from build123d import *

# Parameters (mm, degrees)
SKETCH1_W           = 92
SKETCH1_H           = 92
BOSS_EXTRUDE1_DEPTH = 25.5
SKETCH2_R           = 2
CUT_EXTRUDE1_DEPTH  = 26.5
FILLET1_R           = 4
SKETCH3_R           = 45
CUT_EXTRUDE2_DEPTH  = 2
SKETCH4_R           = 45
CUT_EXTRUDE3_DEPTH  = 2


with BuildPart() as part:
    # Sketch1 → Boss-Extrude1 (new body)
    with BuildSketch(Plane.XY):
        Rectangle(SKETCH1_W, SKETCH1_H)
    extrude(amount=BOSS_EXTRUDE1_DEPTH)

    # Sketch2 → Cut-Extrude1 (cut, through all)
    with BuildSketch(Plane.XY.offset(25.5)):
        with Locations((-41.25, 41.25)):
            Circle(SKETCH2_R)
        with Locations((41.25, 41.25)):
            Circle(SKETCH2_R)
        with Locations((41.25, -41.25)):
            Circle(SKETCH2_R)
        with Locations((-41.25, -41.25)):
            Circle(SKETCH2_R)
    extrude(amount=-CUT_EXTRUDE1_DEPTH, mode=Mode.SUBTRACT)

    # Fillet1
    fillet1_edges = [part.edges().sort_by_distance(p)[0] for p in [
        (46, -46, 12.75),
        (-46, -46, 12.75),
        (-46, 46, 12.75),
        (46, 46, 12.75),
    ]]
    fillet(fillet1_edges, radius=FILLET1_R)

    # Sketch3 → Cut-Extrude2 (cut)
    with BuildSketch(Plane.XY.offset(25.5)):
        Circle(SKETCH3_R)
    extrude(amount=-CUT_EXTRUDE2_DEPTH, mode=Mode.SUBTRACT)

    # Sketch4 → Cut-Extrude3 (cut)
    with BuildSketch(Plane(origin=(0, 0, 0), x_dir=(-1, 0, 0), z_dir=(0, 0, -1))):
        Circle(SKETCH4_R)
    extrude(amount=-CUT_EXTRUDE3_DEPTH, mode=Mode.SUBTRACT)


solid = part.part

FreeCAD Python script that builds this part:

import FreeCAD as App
import Part
import Sketcher
Q = App.Units.Quantity


def edges_at(feature, points):
    """Names of the edges that pass closest to the given points."""
    edges = feature.Shape.Edges
    near = lambda p: min(range(len(edges)), key=lambda i: edges[i].distToShape(Part.Vertex(*p))[0])
    return sorted({f"Edge{near(p) + 1}" for p in points})

doc = App.newDocument("Part")
body = doc.addObject("PartDesign::Body", "Body")

sketch1 = doc.addObject("Sketcher::SketchObject", "Sketch")
body.addObject(sketch1)
sketch1.AttachmentSupport = (doc.XY_Plane, [""])
sketch1.MapMode = "FlatFace"
sketch1.addGeometry([
    Part.LineSegment(App.Vector(-46, 46, 0), App.Vector(-46, -46, 0)),
    Part.LineSegment(App.Vector(-46, -46, 0), App.Vector(46, -46, 0)),
    Part.LineSegment(App.Vector(46, -46, 0), App.Vector(46, 46, 0)),
    Part.LineSegment(App.Vector(46, 46, 0), App.Vector(-46, 46, 0)),
], False)
sketch1.addConstraint([
    Sketcher.Constraint("Coincident", 0, 2, 1, 1),
    Sketcher.Constraint("Coincident", 1, 2, 2, 1),
    Sketcher.Constraint("Coincident", 2, 2, 3, 1),
    Sketcher.Constraint("Coincident", 3, 2, 0, 1),
    Sketcher.Constraint("Vertical", 0),
    Sketcher.Constraint("Horizontal", 1),
    Sketcher.Constraint("Vertical", 2),
    Sketcher.Constraint("Horizontal", 3),
    Sketcher.Constraint("Symmetric", 0, 2, 2, 2, -1, 1),
    Sketcher.Constraint("Equal", 3, 0),
    Sketcher.Constraint("DistanceX", 1, 1, 1, 2, Q("92 mm")),
])
pad1 = doc.addObject("PartDesign::Pad", "Pad")
body.addObject(pad1)
pad1.Profile = sketch1
pad1.Length = 25.5

sketch2 = doc.addObject("Sketcher::SketchObject", "Sketch001")
body.addObject(sketch2)
sketch2.AttachmentSupport = (doc.XY_Plane, [""])
sketch2.MapMode = "FlatFace"
sketch2.AttachmentOffset = App.Placement(App.Vector(0, 0, 25.5), App.Rotation())
sketch2.addGeometry([
    Part.Circle(App.Vector(-41.2, 41.2, 0), App.Vector(0, 0, 1), 2),
    Part.Circle(App.Vector(41.2, 41.2, 0), App.Vector(0, 0, 1), 2),
    Part.Circle(App.Vector(41.2, -41.2, 0), App.Vector(0, 0, 1), 2),
    Part.Circle(App.Vector(-41.2, -41.2, 0), App.Vector(0, 0, 1), 2),
], False)
sketch2.addConstraint([
    Sketcher.Constraint("Equal", 0, 1),
    Sketcher.Constraint("Equal", 1, 2),
    Sketcher.Constraint("Equal", 2, 3),
    Sketcher.Constraint("Symmetric", 0, 3, 2, 3, -1, 1),
    Sketcher.Constraint("Symmetric", 1, 3, 3, 3, -1, 1),
    Sketcher.Constraint("Symmetric", 0, 3, 1, 3, -2),
    Sketcher.Constraint("Diameter", 0, Q("4 mm")),
    Sketcher.Constraint("DistanceX", 0, 3, 1, 3, Q("82.5 mm")),
    Sketcher.Constraint("DistanceY", 2, 3, 1, 3, Q("82.5 mm")),
])
pocket1 = doc.addObject("PartDesign::Pocket", "Pocket")
body.addObject(pocket1)
pocket1.Profile = sketch2
pocket1.Type = "ThroughAll"
doc.recompute()

fillet = doc.addObject("PartDesign::Fillet", "Fillet")
body.addObject(fillet)
fillet.Base = (pocket1, edges_at(pocket1, [
    (46, -46, 12.75),
    (-46, -46, 12.75),
    (-46, 46, 12.75),
    (46, 46, 12.75),
]))
fillet.Radius = 4

sketch3 = doc.addObject("Sketcher::SketchObject", "Sketch002")
body.addObject(sketch3)
sketch3.AttachmentSupport = (doc.XY_Plane, [""])
sketch3.MapMode = "FlatFace"
sketch3.AttachmentOffset = App.Placement(App.Vector(0, 0, 25.5), App.Rotation())
sketch3.addGeometry(Part.Circle(App.Vector(0, 0, 0), App.Vector(0, 0, 1), 45), False)
sketch3.addConstraint([
    Sketcher.Constraint("Coincident", 0, 3, -1, 1),
    Sketcher.Constraint("Diameter", 0, Q("90 mm")),
])
pocket2 = doc.addObject("PartDesign::Pocket", "Pocket001")
body.addObject(pocket2)
pocket2.Profile = sketch3
pocket2.Length = 2

sketch4 = doc.addObject("Sketcher::SketchObject", "Sketch003")
body.addObject(sketch4)
sketch4.AttachmentSupport = (doc.XY_Plane, [""])
sketch4.MapMode = "FlatFace"
sketch4.addGeometry(Part.Circle(App.Vector(0, 0, 0), App.Vector(0, 0, 1), 45), False)
sketch4.addConstraint([
    Sketcher.Constraint("Coincident", 0, 3, -1, 1),
    Sketcher.Constraint("Diameter", 0, Q("90 mm")),
])
pocket3 = doc.addObject("PartDesign::Pocket", "Pocket002")
body.addObject(pocket3)
pocket3.Profile = sketch4
pocket3.Length = 2
pocket3.Reversed = True

doc.recompute()
